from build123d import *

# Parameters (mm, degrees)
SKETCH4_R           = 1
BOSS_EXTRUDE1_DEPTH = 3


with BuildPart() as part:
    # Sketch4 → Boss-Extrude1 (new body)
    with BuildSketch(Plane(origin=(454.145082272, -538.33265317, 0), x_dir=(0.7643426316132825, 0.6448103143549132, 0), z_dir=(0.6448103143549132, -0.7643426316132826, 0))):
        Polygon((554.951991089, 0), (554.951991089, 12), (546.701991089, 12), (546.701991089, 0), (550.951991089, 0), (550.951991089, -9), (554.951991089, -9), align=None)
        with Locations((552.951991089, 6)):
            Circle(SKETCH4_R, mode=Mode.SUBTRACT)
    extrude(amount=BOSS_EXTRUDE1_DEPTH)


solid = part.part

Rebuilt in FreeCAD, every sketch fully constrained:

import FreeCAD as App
import Part
import Sketcher
from FreeCAD import Vector
Q = App.Units.Quantity

doc = App.newDocument("Part")
params = doc.addObject("Spreadsheet::Sheet", "Params")
for row, (alias, value) in enumerate([
    ("sketch1_diameter", "2 mm"),
    ("sketch1_width", "4 mm"),
    ("sketch1_height", "12 mm"),
    ("sketch1_height2", "9 mm"),
    ("sketch1_width2", "8.25 mm"),
    ("pad1_length", "3 mm"),
], start=1):
    params.set(f"A{row}", alias)
    params.set(f"B{row}", "=" + value)
    params.setAlias(f"B{row}", alias)

body = doc.addObject("PartDesign::Body", "Body")

sketch1 = body.newObject("Sketcher::SketchObject", "Sketch")
sketch1.Placement = App.Placement(Vector(454.145082, -538.332653, 0), App.Rotation(Vector(0.764342632, 0.644810314, 0), Vector(0, 0, 1), Vector(0.644810314, -0.764342632, 0), "ZXY"))
sketch1.addGeometry(Part.LineSegment(Vector(554.951991, 12, 0), Vector(546.701991, 12, 0)), False)
sketch1.addGeometry(Part.LineSegment(Vector(546.701991, 12, 0), Vector(546.701991, 0, 0)), False)
sketch1.addGeometry(Part.LineSegment(Vector(546.701991, 0, 0), Vector(550.951991, 0, 0)), False)
sketch1.addGeometry(Part.LineSegment(Vector(550.951991, 0, 0), Vector(550.951991, -9, 0)), False)
sketch1.addGeometry(Part.LineSegment(Vector(550.951991, -9, 0), Vector(554.951991, -9, 0)), False)
sketch1.addGeometry(Part.LineSegment(Vector(554.951991, -9, 0), Vector(554.951991, 12, 0)), False)
sketch1.addGeometry(Part.Circle(Vector(552.951991, 6, 0), Vector(0, 0, 1), 1), False)
sketch1.addConstraint(Sketcher.Constraint("Coincident", 0, 2, 1, 1))
sketch1.addConstraint(Sketcher.Constraint("Coincident", 1, 2, 2, 1))
sketch1.addConstraint(Sketcher.Constraint("Coincident", 2, 2, 3, 1))
sketch1.addConstraint(Sketcher.Constraint("Coincident", 3, 2, 4, 1))
sketch1.addConstraint(Sketcher.Constraint("Coincident", 4, 2, 5, 1))
sketch1.addConstraint(Sketcher.Constraint("Coincident", 5, 2, 0, 1))
sketch1.addConstraint(Sketcher.Constraint("Horizontal", 0))
sketch1.addConstraint(Sketcher.Constraint("Vertical", 1))
sketch1.addConstraint(Sketcher.Constraint("Horizontal", 2))
sketch1.addConstraint(Sketcher.Constraint("Vertical", 3))
sketch1.addConstraint(Sketcher.Constraint("Horizontal", 4))
sketch1.addConstraint(Sketcher.Constraint("Vertical", 5))
sketch1.addConstraint(Sketcher.Constraint("PointOnObject", 1, 2, -1))
sketch1.addConstraint(Sketcher.Constraint("Diameter", 6, Q("2 mm")))
sketch1.addConstraint(Sketcher.Constraint("DistanceX", 4, 1, 4, 2, Q("4 mm")))
sketch1.addConstraint(Sketcher.Constraint("DistanceY", 1, 2, 1, 1, Q("12 mm")))
sketch1.addConstraint(Sketcher.Constraint("DistanceY", 3, 2, 3, 1, Q("9 mm")))
sketch1.addConstraint(Sketcher.Constraint("DistanceY", -1, 1, 6, 3, Q("6 mm")))
sketch1.addConstraint(Sketcher.Constraint("DistanceX", 2, 2, 6, 3, Q("2 mm")))
sketch1.addConstraint(Sketcher.Constraint("DistanceX", 0, 2, 0, 1, Q("8.25 mm")))
sketch1.addConstraint(Sketcher.Constraint("DistanceX", -1, 1, 6, 3, Q("552.951991 mm")))
sketch1.setExpression("Constraints[13]", "Params.sketch1_diameter")
sketch1.setExpression("Constraints[14]", "Params.sketch1_width")
sketch1.setExpression("Constraints[15]", "Params.sketch1_height")
sketch1.setExpression("Constraints[16]", "Params.sketch1_height2")
sketch1.setExpression("Constraints[19]", "Params.sketch1_width2")
pad1 = body.newObject("PartDesign::Pad", "Pad")
pad1.Profile = sketch1
pad1.setExpression("Length", "Params.pad1_length")

doc.recompute()
